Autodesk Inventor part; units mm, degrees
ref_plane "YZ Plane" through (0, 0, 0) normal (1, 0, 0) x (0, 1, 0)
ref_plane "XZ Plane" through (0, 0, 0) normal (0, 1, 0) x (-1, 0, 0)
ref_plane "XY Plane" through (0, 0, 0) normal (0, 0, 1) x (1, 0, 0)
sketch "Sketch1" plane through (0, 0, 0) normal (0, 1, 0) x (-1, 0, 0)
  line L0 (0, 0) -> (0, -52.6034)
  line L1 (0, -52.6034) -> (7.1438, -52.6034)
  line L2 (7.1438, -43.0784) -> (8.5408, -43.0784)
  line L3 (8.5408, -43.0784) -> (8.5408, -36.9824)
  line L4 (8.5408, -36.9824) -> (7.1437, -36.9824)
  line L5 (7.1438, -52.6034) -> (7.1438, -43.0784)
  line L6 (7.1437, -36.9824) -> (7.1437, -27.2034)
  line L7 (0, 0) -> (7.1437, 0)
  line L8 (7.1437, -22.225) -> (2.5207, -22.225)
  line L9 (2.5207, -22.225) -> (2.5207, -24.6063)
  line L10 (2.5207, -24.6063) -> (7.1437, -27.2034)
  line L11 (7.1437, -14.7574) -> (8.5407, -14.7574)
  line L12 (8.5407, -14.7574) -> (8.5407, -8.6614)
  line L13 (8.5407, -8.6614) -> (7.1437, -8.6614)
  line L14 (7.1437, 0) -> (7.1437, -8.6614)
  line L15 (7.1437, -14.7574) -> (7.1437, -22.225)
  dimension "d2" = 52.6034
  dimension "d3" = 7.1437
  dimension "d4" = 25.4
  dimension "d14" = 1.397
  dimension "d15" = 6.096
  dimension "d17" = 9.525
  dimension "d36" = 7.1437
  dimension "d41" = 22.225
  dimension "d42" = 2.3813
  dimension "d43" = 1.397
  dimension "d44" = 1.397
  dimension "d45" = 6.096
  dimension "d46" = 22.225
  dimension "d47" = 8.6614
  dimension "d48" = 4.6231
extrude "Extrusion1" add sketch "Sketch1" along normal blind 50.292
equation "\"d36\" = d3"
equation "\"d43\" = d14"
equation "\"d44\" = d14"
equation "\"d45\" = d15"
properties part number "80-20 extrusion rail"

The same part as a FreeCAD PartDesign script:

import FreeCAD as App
import Part
import Sketcher

V = App.Vector
Q = App.Units.Quantity


def add_polygon(sketch, points):
    """Adds a closed chain of lines whose ends are joined by coincident constraints."""
    first, n = sketch.GeometryCount, len(points)
    for a, b in zip(points, points[1:] + points[:1]):
        sketch.addGeometry(Part.LineSegment(App.Vector(*a, 0), App.Vector(*b, 0)), False)
    for i in range(n):
        sketch.addConstraint(Sketcher.Constraint("Coincident", first + i, 2, first + (i + 1) % n, 1))

doc = App.newDocument("Part")
body = doc.addObject("PartDesign::Body", "Body")

# Sketch on XZ plane
sketch1 = body.newObject("Sketcher::SketchObject", "Sketch")
sketch1.AttachmentSupport = (doc.getObject("XZ_Plane"), [""])
sketch1.MapMode = "FlatFace"
add_polygon(sketch1, [(-7.1437, 0), (0, 0), (0, -52.6034), (-7.1438, -52.6034), (-7.1438, -43.0784), (-8.5408, -43.0784), (-8.5408, -36.9824), (-7.1437, -36.9824), (-7.1437, -27.2034), (-2.5207, -24.6063), (-2.5207, -22.225), (-7.1437, -22.225), (-7.1437, -14.7574), (-8.5407, -14.7574), (-8.5407, -8.6614), (-7.1437, -8.6614)])  # lines 0-15
sketch1.addConstraint([
    Sketcher.Constraint("Horizontal", 0),
    Sketcher.Constraint("Vertical", 1),
    Sketcher.Constraint("Horizontal", 2),
    Sketcher.Constraint("Vertical", 3),
    Sketcher.Constraint("Horizontal", 4),
    Sketcher.Constraint("Vertical", 5),
    Sketcher.Constraint("Horizontal", 6),
    Sketcher.Constraint("Vertical", 7),
    Sketcher.Constraint("Vertical", 9),
    Sketcher.Constraint("Horizontal", 10),
    Sketcher.Constraint("Vertical", 11),
    Sketcher.Constraint("Horizontal", 12),
    Sketcher.Constraint("Vertical", 13),
    Sketcher.Constraint("Horizontal", 14),
    Sketcher.Constraint("Vertical", 15),
    Sketcher.Constraint("Coincident", 0, 2, -1, 1),
    Sketcher.Constraint("Vertical", 3, 2, 6, 2),
    Sketcher.Constraint("Vertical", 7, 2, 10, 2),
    Sketcher.Constraint("Vertical", 5, 2, 12, 2),
    Sketcher.Constraint("Vertical", 11, 2, 14, 2),
    Sketcher.Constraint("Equal", 5, 13),
    Sketcher.Constraint("DistanceY", 2, 2, 7, 2, Q("1 in")),
    Sketcher.Constraint("DistanceY", 5, 1, 5, 2, Q("0.24 in")),
    Sketcher.Constraint("DistanceX", 0, 1, 0, 2, Q("0.281248 in")),
    Sketcher.Constraint("DistanceX", 4, 2, 4, 1, Q("0.055 in")),
    Sketcher.Constraint("DistanceX", 10, 2, 10, 1, Q("0.182 in")),
    Sketcher.Constraint("DistanceY", 1, 2, 1, 1, Q("2.071 in")),
    Sketcher.Constraint("DistanceY", 3, 1, 3, 2, Q("0.375 in")),
    Sketcher.Constraint("DistanceY", 9, 1, 9, 2, Q("0.093752 in")),
    Sketcher.Constraint("DistanceY", 15, 1, 15, 2, Q("0.341 in")),
    Sketcher.Constraint("DistanceY", 9, 2, -1, 1, Q("0.875 in")),
])
pad1 = body.newObject("PartDesign::Pad", "Pad")
pad1.Profile = sketch1
pad1.Length = Q("1.98 in")
pad1.Reversed = True

doc.recompute()
